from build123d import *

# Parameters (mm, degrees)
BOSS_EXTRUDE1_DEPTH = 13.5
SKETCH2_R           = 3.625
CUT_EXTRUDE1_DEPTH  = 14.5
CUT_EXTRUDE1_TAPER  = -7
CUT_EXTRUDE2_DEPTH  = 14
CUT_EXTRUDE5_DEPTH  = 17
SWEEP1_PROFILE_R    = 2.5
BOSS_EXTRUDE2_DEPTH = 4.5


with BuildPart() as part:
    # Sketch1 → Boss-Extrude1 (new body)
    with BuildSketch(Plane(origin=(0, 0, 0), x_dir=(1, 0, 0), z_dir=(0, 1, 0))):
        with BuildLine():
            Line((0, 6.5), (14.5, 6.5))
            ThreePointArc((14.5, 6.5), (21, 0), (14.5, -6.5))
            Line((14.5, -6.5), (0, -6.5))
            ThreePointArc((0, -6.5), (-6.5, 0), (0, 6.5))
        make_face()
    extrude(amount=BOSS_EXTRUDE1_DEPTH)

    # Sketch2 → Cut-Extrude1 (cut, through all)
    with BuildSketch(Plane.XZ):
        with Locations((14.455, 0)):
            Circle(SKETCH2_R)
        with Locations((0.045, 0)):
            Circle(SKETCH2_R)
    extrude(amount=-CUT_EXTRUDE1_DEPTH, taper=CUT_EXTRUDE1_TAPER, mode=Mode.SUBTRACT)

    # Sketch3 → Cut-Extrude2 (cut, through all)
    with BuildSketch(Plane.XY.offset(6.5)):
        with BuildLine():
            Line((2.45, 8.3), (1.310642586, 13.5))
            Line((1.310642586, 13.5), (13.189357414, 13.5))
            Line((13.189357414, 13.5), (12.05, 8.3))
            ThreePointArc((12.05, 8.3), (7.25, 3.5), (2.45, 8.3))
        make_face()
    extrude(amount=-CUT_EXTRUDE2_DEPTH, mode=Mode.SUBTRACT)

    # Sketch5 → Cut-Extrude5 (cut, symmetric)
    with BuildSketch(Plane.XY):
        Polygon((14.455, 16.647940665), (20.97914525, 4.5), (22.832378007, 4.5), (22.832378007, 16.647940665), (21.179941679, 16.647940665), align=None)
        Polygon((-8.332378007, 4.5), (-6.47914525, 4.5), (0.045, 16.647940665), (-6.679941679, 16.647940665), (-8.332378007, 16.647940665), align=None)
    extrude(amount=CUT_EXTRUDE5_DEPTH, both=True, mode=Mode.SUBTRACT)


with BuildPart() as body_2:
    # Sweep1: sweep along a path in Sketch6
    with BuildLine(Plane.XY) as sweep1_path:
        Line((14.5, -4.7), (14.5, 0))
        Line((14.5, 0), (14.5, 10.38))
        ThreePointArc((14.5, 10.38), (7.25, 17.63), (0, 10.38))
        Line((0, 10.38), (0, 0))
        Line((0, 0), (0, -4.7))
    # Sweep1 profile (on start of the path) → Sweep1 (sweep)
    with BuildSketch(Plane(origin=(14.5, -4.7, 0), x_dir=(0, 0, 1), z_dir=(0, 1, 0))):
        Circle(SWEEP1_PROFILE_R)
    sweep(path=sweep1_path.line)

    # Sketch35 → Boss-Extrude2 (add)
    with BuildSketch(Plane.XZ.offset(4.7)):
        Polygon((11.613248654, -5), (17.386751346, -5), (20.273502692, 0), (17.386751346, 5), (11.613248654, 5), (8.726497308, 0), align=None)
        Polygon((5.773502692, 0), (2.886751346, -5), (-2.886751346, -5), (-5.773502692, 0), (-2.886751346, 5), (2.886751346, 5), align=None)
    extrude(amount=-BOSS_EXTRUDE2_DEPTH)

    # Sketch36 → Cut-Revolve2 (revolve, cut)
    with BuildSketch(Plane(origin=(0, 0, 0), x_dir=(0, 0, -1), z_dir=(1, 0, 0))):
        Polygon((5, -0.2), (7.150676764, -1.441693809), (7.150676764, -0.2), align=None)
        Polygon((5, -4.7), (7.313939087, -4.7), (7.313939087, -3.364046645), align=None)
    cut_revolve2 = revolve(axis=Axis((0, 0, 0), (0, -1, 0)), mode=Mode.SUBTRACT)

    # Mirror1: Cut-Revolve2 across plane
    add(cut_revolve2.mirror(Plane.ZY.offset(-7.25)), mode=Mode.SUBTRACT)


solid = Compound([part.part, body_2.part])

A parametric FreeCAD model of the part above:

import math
import FreeCAD as App
import Part
import Sketcher

V = App.Vector
Q = App.Units.Quantity


def add_polygon(sketch, points):
    """Adds a closed chain of lines whose ends are joined by coincident constraints."""
    first, n = sketch.GeometryCount, len(points)
    for a, b in zip(points, points[1:] + points[:1]):
        sketch.addGeometry(Part.LineSegment(App.Vector(*a, 0), App.Vector(*b, 0)), False)
    for i in range(n):
        sketch.addConstraint(Sketcher.Constraint("Coincident", first + i, 2, first + (i + 1) % n, 1))

doc = App.newDocument("Part")
body = doc.addObject("PartDesign::Body", "Body")

sketch1 = body.newObject("Sketcher::SketchObject", "Sketch")
sketch1.AttachmentSupport = (doc.getObject("XZ_Plane"), [""])
sketch1.MapMode = "FlatFace"
sketch1.addGeometry([
    Part.LineSegment(V(14.5, -6.5, 0), V(0, -6.5, 0)),
    Part.ArcOfCircle(Part.Circle(V(0, 0, 0), V(0, 0, 1), 6.5), math.radians(90), math.radians(270)),
    Part.LineSegment(V(0, 6.5, 0), V(14.5, 6.5, 0)),
    Part.ArcOfCircle(Part.Circle(V(14.5, 0, 0), V(0, 0, 1), 6.5), math.radians(-90), math.radians(90)),
], False)
sketch1.addConstraint([
    Sketcher.Constraint("Tangent", 0, 2, 1, 2),
    Sketcher.Constraint("Tangent", 1, 1, 2, 1),
    Sketcher.Constraint("Tangent", 2, 2, 3, 2),
    Sketcher.Constraint("Tangent", 3, 1, 0, 1),
    Sketcher.Constraint("Horizontal", 0),
    Sketcher.Constraint("Horizontal", 2),
    Sketcher.Constraint("Coincident", 1, 3, -1, 1),
    Sketcher.Constraint("Radius", 1, 6.5),
    Sketcher.Constraint("DistanceX", 0, 2, 0, 1, 14.5),
])
pad1 = body.newObject("PartDesign::Pad", "Pad")
pad1.Profile = sketch1
pad1.Length = 13.5
pad1.Reversed = True

sketch2 = body.newObject("Sketcher::SketchObject", "Sketch001")
sketch2.AttachmentSupport = (doc.getObject("XZ_Plane"), [""])
sketch2.MapMode = "FlatFace"
sketch2.addGeometry([
    Part.Circle(V(14.455, 0, 0), V(0, 0, 1), 3.625),
    Part.Circle(V(0.045, 0, 0), V(0, 0, 1), 3.625),
], False)
sketch2.addConstraint([
    Sketcher.Constraint("Equal", 0, 1),
    Sketcher.Constraint("PointOnObject", 0, 3, -1),
    Sketcher.Constraint("PointOnObject", 1, 3, -1),
    Sketcher.Constraint("Diameter", 0, 7.25),
    Sketcher.Constraint("DistanceX", 1, 3, 0, 3, 14.41),
    Sketcher.Constraint("DistanceX", -1, 1, 0, 3, 14.455),
])
pocket1 = body.newObject("PartDesign::Pocket", "Pocket")
pocket1.Profile = sketch2
pocket1.Length = 14.5
pocket1.TaperAngle = 7

sketch3 = body.newObject("Sketcher::SketchObject", "Sketch002")
sketch3.AttachmentSupport = (doc.getObject("XY_Plane"), [""])
sketch3.MapMode = "FlatFace"
sketch3.AttachmentOffset = App.Placement(V(0, 0, 6.5), App.Rotation())
sketch3.addGeometry([
    Part.LineSegment(V(1.310643, 13.5, 0), V(2.45, 8.3, 0)),
    Part.ArcOfCircle(Part.Circle(V(7.25, 8.3, 0), V(0, 0, 1), 4.8), math.radians(180), math.radians(360)),
    Part.LineSegment(V(12.05, 8.3, 0), V(13.189357, 13.5, 0)),
    Part.LineSegment(V(13.189357, 13.5, 0), V(1.310643, 13.5, 0)),
], False)
sketch3.addConstraint([
    Sketcher.Constraint("Coincident", 0, 2, 1, 1),
    Sketcher.Constraint("Coincident", 1, 2, 2, 1),
    Sketcher.Constraint("Coincident", 2, 2, 3, 1),
    Sketcher.Constraint("Coincident", 3, 2, 0, 1),
    Sketcher.Constraint("Horizontal", 3),
    Sketcher.Constraint("Horizontal", 1, 3, 0, 2),
    Sketcher.Constraint("Horizontal", 0, 2, 1, 2),
    Sketcher.Constraint("Equal", 0, 2),
    Sketcher.Constraint("Radius", 1, 4.8),
    Sketcher.Constraint("DistanceY", -1, 1, 1, 3, 8.3),
    Sketcher.Constraint("DistanceY", -1, 1, 2, 2, 13.5),
    Sketcher.Constraint("DistanceX", -1, 1, 1, 3, 7.25),
    Sketcher.Constraint("DistanceX", 3, 2, 3, 1, 11.878715),
])
pocket2 = body.newObject("PartDesign::Pocket", "Pocket001")
pocket2.Profile = sketch3
pocket2.Type = "ThroughAll"

sketch4 = body.newObject("Sketcher::SketchObject", "Sketch003")
sketch4.AttachmentSupport = (doc.getObject("XY_Plane"), [""])
sketch4.MapMode = "FlatFace"
add_polygon(sketch4, [(14.455, 16.647941), (20.979145, 4.5), (22.832378, 4.5), (22.832378, 16.647941)])
add_polygon(sketch4, [(-8.332378, 4.5), (-6.479145, 4.5), (0.045, 16.647941), (-8.332378, 16.647941)])
sketch4.addConstraint([
    Sketcher.Constraint("Horizontal", 1),
    Sketcher.Constraint("Vertical", 2),
    Sketcher.Constraint("Horizontal", 3),
    Sketcher.Constraint("Horizontal", 4),
    Sketcher.Constraint("Horizontal", 6),
    Sketcher.Constraint("Vertical", 7),
    Sketcher.Constraint("Horizontal", 1, 2, 4, 2),
    Sketcher.Constraint("Horizontal", 3, 2, 5, 2),
    Sketcher.Constraint("Equal", 1, 4),
    Sketcher.Constraint("Equal", 3, 6),
    Sketcher.Constraint("DistanceY", -1, 1, 0, 2, 4.5),
    Sketcher.Constraint("DistanceX", 5, 2, 3, 2, 14.41),
    Sketcher.Constraint("DistanceX", -1, 1, 3, 2, 14.455),
    Sketcher.Constraint("DistanceX", 3, 2, 3, 1, 8.377378),
    Sketcher.Constraint("DistanceY", 2, 1, 2, 2, 12.147941),
    Sketcher.Constraint("DistanceX", 1, 1, 1, 2, 1.853233),
])
pocket3 = body.newObject("PartDesign::Pocket", "Pocket002")
pocket3.Profile = sketch4
pocket3.Length = 34
pocket3.Midplane = True
body2 = doc.addObject("PartDesign::Body", "Body001")

sketch5 = body2.newObject("Sketcher::SketchObject", "Sketch004")
sketch5.AttachmentSupport = (doc.getObject("XZ_Plane001"), [""])
sketch5.MapMode = "FlatFace"
sketch5.AttachmentOffset = App.Placement(V(0, 0, 4.7), App.Rotation())
sketch5.addGeometry(Part.Circle(V(14.5, 0, 0), V(0, 0, 1), 2.5), False)
sketch5.addConstraint([
    Sketcher.Constraint("PointOnObject", 0, 3, -1),
    Sketcher.Constraint("Diameter", 0, 5.0),
    Sketcher.Constraint("DistanceX", -1, 1, 0, 3, 14.5),
])

sketch6 = body2.newObject("Sketcher::SketchObject", "Sketch005")
sketch6.AttachmentSupport = (doc.getObject("XY_Plane001"), [""])
sketch6.MapMode = "FlatFace"
sketch6.addGeometry([
    Part.LineSegment(V(14.5, -4.7, 0), V(14.5, 10.38, 0)),
    Part.ArcOfCircle(Part.Circle(V(7.25, 10.38, 0), V(0, 0, 1), 7.25), math.radians(0), math.radians(180)),
    Part.LineSegment(V(0, 10.38, 0), V(0, -4.7, 0)),
], False)
sketch6.addConstraint([
    Sketcher.Constraint("Tangent", 0, 2, 1, 1),
    Sketcher.Constraint("Tangent", 1, 2, 2, 1),
    Sketcher.Constraint("Vertical", 0),
    Sketcher.Constraint("Vertical", 2),
    Sketcher.Constraint("PointOnObject", 1, 2, -2),
    Sketcher.Constraint("Horizontal", 0, 1, 2, 2),
    Sketcher.Constraint("Radius", 1, 7.25),
    Sketcher.Constraint("DistanceY", 0, 1, 0, 2, 15.08),
    Sketcher.Constraint("DistanceY", 0, 1, -1, 1, 4.7),
])
doc.recompute()

additivepipe = body2.newObject("PartDesign::AdditivePipe", "AdditivePipe")
additivepipe.Profile = sketch5
additivepipe.Spine = (sketch6, ["Edge1", "Edge2", "Edge3"])

sketch7 = body2.newObject("Sketcher::SketchObject", "Sketch006")
sketch7.AttachmentSupport = (doc.getObject("XZ_Plane001"), [""])
sketch7.MapMode = "FlatFace"
sketch7.AttachmentOffset = App.Placement(V(0, 0, 4.7), App.Rotation())
add_polygon(sketch7, [(11.613249, -5), (17.386751, -5), (20.273503, 0), (17.386751, 5), (11.613249, 5), (8.726497, 0)])
add_polygon(sketch7, [(2.886751, -5), (5.773503, 0), (2.886751, 5), (-2.886751, 5), (-5.773503, 0), (-2.886751, -5)])
sketch7.addConstraint([
    Sketcher.Constraint("Horizontal", 0),
    Sketcher.Constraint("Horizontal", 3),
    Sketcher.Constraint("Horizontal", 8),
    Sketcher.Constraint("Horizontal", 11),
    Sketcher.Constraint("Symmetric", 6, 2, 9, 2, -1, 1),
    Sketcher.Constraint("Symmetric", 7, 2, 10, 2, -1, 1),
    Sketcher.Constraint("Symmetric", 0, 2, 2, 2, -1),
    Sketcher.Constraint("PointOnObject", 1, 2, -1),
    Sketcher.Constraint("PointOnObject", 4, 2, -1),
    Sketcher.Constraint("PointOnObject", 6, 2, -1),
    Sketcher.Constraint("Parallel", 1, 4),
    Sketcher.Constraint("Parallel", 2, 5),
    Sketcher.Constraint("Parallel", 4, 6),
    Sketcher.Constraint("Parallel", 5, 7),
    Sketcher.Constraint("Parallel", 6, 9),
    Sketcher.Constraint("Horizontal", 3, 2, 7, 2),
    Sketcher.Constraint("Equal", 3, 8),
    Sketcher.Constraint("Angle", 1, Q("60 deg")),
    Sketcher.Constraint("DistanceY", 0, 2, -1, 1, 5.0),
    Sketcher.Constraint("DistanceX", 7, 2, 2, 2, 14.5),
    Sketcher.Constraint("DistanceX", 0, 1, 0, 2, 5.773503),
])
pad2 = body2.newObject("PartDesign::Pad", "Pad001")
pad2.Profile = sketch7
pad2.Length = 4.5
pad2.Reversed = True

sketch8 = body2.newObject("Sketcher::SketchObject", "Sketch007")
sketch8.AttachmentSupport = (doc.getObject("YZ_Plane001"), [""])
sketch8.MapMode = "FlatFace"
add_polygon(sketch8, [(-0.2, -5), (-1.441694, -7.150677), (-0.2, -7.150677)])
add_polygon(sketch8, [(-4.7, -5), (-4.7, -7.313939), (-3.364047, -7.313939)])
sketch8.addConstraint([
    Sketcher.Constraint("Horizontal", 1),
    Sketcher.Constraint("Vertical", 2),
    Sketcher.Constraint("Vertical", 3),
    Sketcher.Constraint("Horizontal", 4),
    Sketcher.Constraint("Horizontal", 2, 2, 5, 2),
    Sketcher.Constraint("Angle", 0, Q("-120 deg")),
    Sketcher.Constraint("Angle", 5, Q("120 deg")),
    Sketcher.Constraint("DistanceY", 2, 2, -1, 1, 5.0),
    Sketcher.Constraint("DistanceX", 1, 2, -1, 1, 0.2),
    Sketcher.Constraint("DistanceX", 3, 2, -1, 1, 4.7),
    Sketcher.Constraint("DistanceY", 3, 2, 3, 1, 2.313939),
    Sketcher.Constraint("DistanceX", 1, 1, 1, 2, 1.241694),
])
groove = body2.newObject("PartDesign::Groove", "Groove")
groove.Profile = sketch8
groove.ReferenceAxis = (sketch8, ["H_Axis"])
groove.Angle = 360
doc.recompute()

datumplane = body2.newObject("PartDesign::Plane", "DatumPlane")
datumplane.AttachmentSupport = (doc.getObject("YZ_Plane001"), [""])
datumplane.MapMode = "FlatFace"
datumplane.AttachmentOffset = App.Placement(V(0, 0, 7.25), App.Rotation())
mirrored = body2.newObject("PartDesign::Mirrored", "Mirrored")
mirrored.Originals = [groove]
mirrored.MirrorPlane = (datumplane, [""])
body2.Tip = mirrored

doc.recompute()
